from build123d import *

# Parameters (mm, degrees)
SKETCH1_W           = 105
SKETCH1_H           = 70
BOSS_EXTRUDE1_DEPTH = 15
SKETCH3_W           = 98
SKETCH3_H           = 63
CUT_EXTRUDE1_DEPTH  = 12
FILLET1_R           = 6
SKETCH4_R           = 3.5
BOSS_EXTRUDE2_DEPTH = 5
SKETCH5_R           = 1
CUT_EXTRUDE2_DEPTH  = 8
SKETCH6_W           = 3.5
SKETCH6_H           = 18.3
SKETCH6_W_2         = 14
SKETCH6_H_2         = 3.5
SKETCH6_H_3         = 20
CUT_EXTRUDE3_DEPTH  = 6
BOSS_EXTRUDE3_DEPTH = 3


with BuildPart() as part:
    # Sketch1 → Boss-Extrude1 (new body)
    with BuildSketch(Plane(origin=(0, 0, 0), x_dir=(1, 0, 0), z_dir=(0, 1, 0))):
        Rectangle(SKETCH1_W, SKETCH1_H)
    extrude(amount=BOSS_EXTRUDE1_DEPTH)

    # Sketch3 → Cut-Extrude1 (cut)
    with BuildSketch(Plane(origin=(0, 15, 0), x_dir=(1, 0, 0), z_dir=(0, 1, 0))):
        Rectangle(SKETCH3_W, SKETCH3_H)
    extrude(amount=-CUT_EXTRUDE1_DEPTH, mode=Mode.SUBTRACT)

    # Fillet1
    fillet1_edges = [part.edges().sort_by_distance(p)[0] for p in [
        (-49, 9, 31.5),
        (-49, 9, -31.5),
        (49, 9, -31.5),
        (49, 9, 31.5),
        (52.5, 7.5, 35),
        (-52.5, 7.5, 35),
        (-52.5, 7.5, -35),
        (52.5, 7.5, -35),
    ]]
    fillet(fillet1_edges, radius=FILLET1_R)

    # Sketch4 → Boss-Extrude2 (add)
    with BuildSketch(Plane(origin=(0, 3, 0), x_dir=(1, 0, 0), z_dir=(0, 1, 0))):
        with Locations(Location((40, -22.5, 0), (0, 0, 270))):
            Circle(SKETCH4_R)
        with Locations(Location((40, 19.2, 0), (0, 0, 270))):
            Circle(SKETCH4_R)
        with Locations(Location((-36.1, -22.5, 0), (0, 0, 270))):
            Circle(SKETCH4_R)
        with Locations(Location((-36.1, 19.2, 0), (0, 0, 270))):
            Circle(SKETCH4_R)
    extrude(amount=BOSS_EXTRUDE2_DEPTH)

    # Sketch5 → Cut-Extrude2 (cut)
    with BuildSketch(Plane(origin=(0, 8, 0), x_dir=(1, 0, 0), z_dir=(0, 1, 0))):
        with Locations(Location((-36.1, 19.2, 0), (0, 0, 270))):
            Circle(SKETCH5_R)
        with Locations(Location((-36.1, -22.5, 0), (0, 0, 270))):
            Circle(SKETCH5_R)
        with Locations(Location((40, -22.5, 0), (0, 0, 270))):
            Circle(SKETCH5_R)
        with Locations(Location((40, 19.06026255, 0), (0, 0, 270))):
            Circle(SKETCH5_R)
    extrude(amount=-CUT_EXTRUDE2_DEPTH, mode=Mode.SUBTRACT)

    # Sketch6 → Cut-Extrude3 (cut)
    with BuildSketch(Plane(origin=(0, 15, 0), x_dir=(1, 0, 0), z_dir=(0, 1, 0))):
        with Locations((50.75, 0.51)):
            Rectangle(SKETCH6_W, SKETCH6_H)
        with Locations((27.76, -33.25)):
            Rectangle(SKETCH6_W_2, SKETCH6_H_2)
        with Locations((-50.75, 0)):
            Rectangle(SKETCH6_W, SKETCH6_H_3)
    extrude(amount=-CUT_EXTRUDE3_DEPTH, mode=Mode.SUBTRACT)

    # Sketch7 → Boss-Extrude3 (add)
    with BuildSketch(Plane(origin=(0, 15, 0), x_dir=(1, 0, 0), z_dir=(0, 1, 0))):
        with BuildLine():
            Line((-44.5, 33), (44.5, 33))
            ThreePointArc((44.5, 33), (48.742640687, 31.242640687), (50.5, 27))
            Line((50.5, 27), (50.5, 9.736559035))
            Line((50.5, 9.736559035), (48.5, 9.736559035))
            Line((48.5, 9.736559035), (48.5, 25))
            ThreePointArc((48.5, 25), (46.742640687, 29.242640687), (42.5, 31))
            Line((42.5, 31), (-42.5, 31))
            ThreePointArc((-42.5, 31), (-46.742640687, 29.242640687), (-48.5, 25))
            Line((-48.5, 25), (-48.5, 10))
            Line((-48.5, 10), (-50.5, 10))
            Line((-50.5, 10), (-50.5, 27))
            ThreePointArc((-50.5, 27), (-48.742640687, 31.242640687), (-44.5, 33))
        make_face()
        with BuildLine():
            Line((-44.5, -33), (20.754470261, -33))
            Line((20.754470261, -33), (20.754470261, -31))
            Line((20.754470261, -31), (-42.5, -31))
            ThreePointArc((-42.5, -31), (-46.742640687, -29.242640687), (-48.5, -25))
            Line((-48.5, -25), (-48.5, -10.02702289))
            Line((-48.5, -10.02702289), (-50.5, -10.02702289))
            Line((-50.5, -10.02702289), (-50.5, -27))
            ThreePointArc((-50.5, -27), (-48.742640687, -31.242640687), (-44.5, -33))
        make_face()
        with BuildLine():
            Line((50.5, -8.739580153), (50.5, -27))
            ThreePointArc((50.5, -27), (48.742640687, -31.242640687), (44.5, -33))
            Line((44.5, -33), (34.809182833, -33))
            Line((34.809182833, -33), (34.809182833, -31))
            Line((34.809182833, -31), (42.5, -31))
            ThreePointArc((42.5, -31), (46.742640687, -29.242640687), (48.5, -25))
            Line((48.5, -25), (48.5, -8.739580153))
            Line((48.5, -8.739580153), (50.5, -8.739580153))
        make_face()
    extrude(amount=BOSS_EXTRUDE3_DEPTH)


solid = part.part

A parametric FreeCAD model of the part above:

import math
import FreeCAD as App
import Part
import Sketcher
Q = App.Units.Quantity


def edges_at(feature, points):
    """Names of the edges that pass closest to the given points."""
    edges = feature.Shape.Edges
    near = lambda p: min(range(len(edges)), key=lambda i: edges[i].distToShape(Part.Vertex(*p))[0])
    return sorted({f"Edge{near(p) + 1}" for p in points})


def add_polygon(sketch, points):
    """Adds a closed chain of lines whose ends are joined by coincident constraints."""
    first, n = sketch.GeometryCount, len(points)
    for a, b in zip(points, points[1:] + points[:1]):
        sketch.addGeometry(Part.LineSegment(App.Vector(*a, 0), App.Vector(*b, 0)), False)
    for i in range(n):
        sketch.addConstraint(Sketcher.Constraint("Coincident", first + i, 2, first + (i + 1) % n, 1))

doc = App.newDocument("Part")
body = doc.addObject("PartDesign::Body", "Body")

sketch1 = doc.addObject("Sketcher::SketchObject", "Sketch")
body.addObject(sketch1)
sketch1.AttachmentSupport = (doc.XZ_Plane, [""])
sketch1.MapMode = "FlatFace"
add_polygon(sketch1, [(-52, -35), (-52, 35), (52, 35), (52, -35)])
sketch1.addConstraint(Sketcher.Constraint("Vertical", 0))
sketch1.addConstraint(Sketcher.Constraint("Horizontal", 1))
sketch1.addConstraint(Sketcher.Constraint("Vertical", 2))
sketch1.addConstraint(Sketcher.Constraint("Horizontal", 3))
sketch1.addConstraint(Sketcher.Constraint("Symmetric", 0, 2, 2, 2, -1, 1))
sketch1.addConstraint(Sketcher.Constraint("DistanceX", 1, 1, 1, 2, Q("105 mm")))
sketch1.addConstraint(Sketcher.Constraint("DistanceY", 0, 1, 0, 2, Q("70 mm")))
pad1 = doc.addObject("PartDesign::Pad", "Pad")
body.addObject(pad1)
pad1.Profile = sketch1
pad1.Length = 15
pad1.Reversed = True

sketch2 = doc.addObject("Sketcher::SketchObject", "Sketch001")
body.addObject(sketch2)
sketch2.AttachmentSupport = (doc.XZ_Plane, [""])
sketch2.MapMode = "FlatFace"
sketch2.AttachmentOffset = App.Placement(App.Vector(0, 0, -15), App.Rotation())
add_polygon(sketch2, [(-49, -32), (-49, 32), (49, 32), (49, -32)])
sketch2.addConstraint(Sketcher.Constraint("Vertical", 0))
sketch2.addConstraint(Sketcher.Constraint("Horizontal", 1))
sketch2.addConstraint(Sketcher.Constraint("Vertical", 2))
sketch2.addConstraint(Sketcher.Constraint("Horizontal", 3))
sketch2.addConstraint(Sketcher.Constraint("Symmetric", 0, 2, 2, 2, -1, 1))
sketch2.addConstraint(Sketcher.Constraint("DistanceX", 1, 1, 1, 2, Q("98 mm")))
sketch2.addConstraint(Sketcher.Constraint("DistanceY", 0, 1, 0, 2, Q("63 mm")))
pocket1 = doc.addObject("PartDesign::Pocket", "Pocket")
body.addObject(pocket1)
pocket1.Profile = sketch2
pocket1.Length = 12
pocket1.Reversed = True
doc.recompute()

fillet = doc.addObject("PartDesign::Fillet", "Fillet")
body.addObject(fillet)
fillet.Base = (pocket1, edges_at(pocket1, [
    (-49, 9, 31.5),
    (-49, 9, -31.5),
    (49, 9, -31.5),
    (49, 9, 31.5),
    (52.5, 7.5, 35),
    (-52.5, 7.5, 35),
    (-52.5, 7.5, -35),
    (52.5, 7.5, -35),
]))
fillet.Radius = 6

sketch3 = doc.addObject("Sketcher::SketchObject", "Sketch002")
body.addObject(sketch3)
sketch3.AttachmentSupport = (doc.XZ_Plane, [""])
sketch3.MapMode = "FlatFace"
sketch3.AttachmentOffset = App.Placement(App.Vector(0, 0, -3), App.Rotation())
sketch3.addGeometry(Part.Circle(App.Vector(40, 22.5, 0), App.Vector(0, 0, 1), 3.5), False)
sketch3.addGeometry(Part.Circle(App.Vector(40, -19.2, 0), App.Vector(0, 0, 1), 3.5), False)
sketch3.addGeometry(Part.Circle(App.Vector(-36.1, 22.5, 0), App.Vector(0, 0, 1), 3.5), False)
sketch3.addGeometry(Part.Circle(App.Vector(-36.1, -19.2, 0), App.Vector(0, 0, 1), 3.5), False)
sketch3.addConstraint(Sketcher.Constraint("Equal", 0, 1))
sketch3.addConstraint(Sketcher.Constraint("Equal", 1, 2))
sketch3.addConstraint(Sketcher.Constraint("Equal", 2, 3))
sketch3.addConstraint(Sketcher.Constraint("Horizontal", 0, 3, 2, 3))
sketch3.addConstraint(Sketcher.Constraint("Horizontal", 1, 3, 3, 3))
sketch3.addConstraint(Sketcher.Constraint("Vertical", 0, 3, 1, 3))
sketch3.addConstraint(Sketcher.Constraint("Vertical", 2, 3, 3, 3))
sketch3.addConstraint(Sketcher.Constraint("Diameter", 0, Q("7 mm")))
sketch3.addConstraint(Sketcher.Constraint("DistanceX", -1, 1, 0, 3, Q("40 mm")))
sketch3.addConstraint(Sketcher.Constraint("DistanceY", -1, 1, 0, 3, Q("22.5 mm")))
sketch3.addConstraint(Sketcher.Constraint("DistanceY", 1, 3, -1, 1, Q("19.2 mm")))
sketch3.addConstraint(Sketcher.Constraint("DistanceX", 2, 3, -1, 1, Q("36.1 mm")))
pad2 = doc.addObject("PartDesign::Pad", "Pad001")
body.addObject(pad2)
pad2.Profile = sketch3
pad2.Length = 5
pad2.Reversed = True

sketch4 = doc.addObject("Sketcher::SketchObject", "Sketch003")
body.addObject(sketch4)
sketch4.AttachmentSupport = (doc.XZ_Plane, [""])
sketch4.MapMode = "FlatFace"
sketch4.AttachmentOffset = App.Placement(App.Vector(0, 0, -8), App.Rotation())
sketch4.addGeometry(Part.Circle(App.Vector(-36.1, -19.2, 0), App.Vector(0, 0, 1), 1), False)
sketch4.addGeometry(Part.Circle(App.Vector(-36.1, 22.5, 0), App.Vector(0, 0, 1), 1), False)
sketch4.addGeometry(Part.Circle(App.Vector(40, 22.5, 0), App.Vector(0, 0, 1), 1), False)
sketch4.addGeometry(Part.Circle(App.Vector(40, -19.1, 0), App.Vector(0, 0, 1), 1), False)
sketch4.addConstraint(Sketcher.Constraint("Equal", 0, 1))
sketch4.addConstraint(Sketcher.Constraint("Equal", 1, 2))
sketch4.addConstraint(Sketcher.Constraint("Equal", 2, 3))
sketch4.addConstraint(Sketcher.Constraint("Horizontal", 1, 3, 2, 3))
sketch4.addConstraint(Sketcher.Constraint("Vertical", 0, 3, 1, 3))
sketch4.addConstraint(Sketcher.Constraint("Vertical", 2, 3, 3, 3))
sketch4.addConstraint(Sketcher.Constraint("Diameter", 0, Q("2 mm")))
sketch4.addConstraint(Sketcher.Constraint("DistanceX", -1, 1, 2, 3, Q("40 mm")))
sketch4.addConstraint(Sketcher.Constraint("DistanceX", 0, 3, -1, 1, Q("36.1 mm")))
sketch4.addConstraint(Sketcher.Constraint("DistanceY", 0, 3, -1, 1, Q("19.2 mm")))
sketch4.addConstraint(Sketcher.Constraint("DistanceY", -1, 1, 1, 3, Q("22.5 mm")))
sketch4.addConstraint(Sketcher.Constraint("DistanceY", 3, 3, -1, 1, Q("19.060263 mm")))
pocket2 = doc.addObject("PartDesign::Pocket", "Pocket001")
body.addObject(pocket2)
pocket2.Profile = sketch4
pocket2.Length = 8
pocket2.Reversed = True

sketch5 = doc.addObject("Sketcher::SketchObject", "Sketch004")
body.addObject(sketch5)
sketch5.AttachmentSupport = (doc.XZ_Plane, [""])
sketch5.MapMode = "FlatFace"
sketch5.AttachmentOffset = App.Placement(App.Vector(0, 0, -15), App.Rotation())
add_polygon(sketch5, [(49, -9.7), (49, 8.6), (52.5, 8.6), (52.5, -9.7)])
add_polygon(sketch5, [(20.8, 31.5), (20.8, 35), (34.8, 35), (34.8, 31.5)])
add_polygon(sketch5, [(-52.5, -10), (-52.5, 10), (-49, 10), (-49, -10)])
sketch5.addConstraint(Sketcher.Constraint("Vertical", 0))
sketch5.addConstraint(Sketcher.Constraint("Horizontal", 1))
sketch5.addConstraint(Sketcher.Constraint("Vertical", 2))
sketch5.addConstraint(Sketcher.Constraint("Horizontal", 3))
sketch5.addConstraint(Sketcher.Constraint("Vertical", 4))
sketch5.addConstraint(Sketcher.Constraint("Horizontal", 5))
sketch5.addConstraint(Sketcher.Constraint("Vertical", 6))
sketch5.addConstraint(Sketcher.Constraint("Horizontal", 7))
sketch5.addConstraint(Sketcher.Constraint("Vertical", 8))
sketch5.addConstraint(Sketcher.Constraint("Horizontal", 9))
sketch5.addConstraint(Sketcher.Constraint("Vertical", 10))
sketch5.addConstraint(Sketcher.Constraint("Horizontal", 11))
sketch5.addConstraint(Sketcher.Constraint("Equal", 3, 9))
sketch5.addConstraint(Sketcher.Constraint("Equal", 11, 4))
sketch5.addConstraint(Sketcher.Constraint("DistanceX", 5, 1, 5, 2, Q("14 mm")))
sketch5.addConstraint(Sketcher.Constraint("DistanceY", 8, 1, 8, 2, Q("20 mm")))
sketch5.addConstraint(Sketcher.Constraint("DistanceX", 1, 1, 1, 2, Q("3.5 mm")))
sketch5.addConstraint(Sketcher.Constraint("DistanceY", 0, 1, 0, 2, Q("18.3 mm")))
sketch5.addConstraint(Sketcher.Constraint("DistanceX", -1, 1, 0, 2, Q("49 mm")))
sketch5.addConstraint(Sketcher.Constraint("DistanceY", -1, 1, 4, 2, Q("35 mm")))
sketch5.addConstraint(Sketcher.Constraint("DistanceY", -1, 1, 8, 2, Q("10 mm")))
sketch5.addConstraint(Sketcher.Constraint("DistanceX", 9, 2, -1, 1, Q("49 mm")))
sketch5.addConstraint(Sketcher.Constraint("DistanceY", -1, 1, 0, 2, Q("8.64 mm")))
sketch5.addConstraint(Sketcher.Constraint("DistanceX", -1, 1, 4, 2, Q("20.76 mm")))
pocket3 = doc.addObject("PartDesign::Pocket", "Pocket002")
body.addObject(pocket3)
pocket3.Profile = sketch5
pocket3.Length = 6
pocket3.Reversed = True

sketch6 = doc.addObject("Sketcher::SketchObject", "Sketch005")
body.addObject(sketch6)
sketch6.AttachmentSupport = (doc.XZ_Plane, [""])
sketch6.MapMode = "FlatFace"
sketch6.AttachmentOffset = App.Placement(App.Vector(0, 0, -15), App.Rotation())
sketch6.addGeometry(Part.LineSegment(App.Vector(44.5, -33, 0), App.Vector(-44.5, -33, 0)), False)
sketch6.addGeometry(Part.ArcOfCircle(Part.Circle(App.Vector(-44.5, -27, 0), App.Vector(0, 0, 1), 6), math.radians(180), math.radians(270)), False)
sketch6.addGeometry(Part.LineSegment(App.Vector(-50.5, -27, 0), App.Vector(-50.5, -10, 0)), False)
sketch6.addGeometry(Part.LineSegment(App.Vector(-50.5, -10, 0), App.Vector(-48.5, -10, 0)), False)
sketch6.addGeometry(Part.LineSegment(App.Vector(-48.5, -10, 0), App.Vector(-48.5, -25, 0)), False)
sketch6.addGeometry(Part.ArcOfCircle(Part.Circle(App.Vector(-42.5, -25, 0), App.Vector(0, 0, 1), 6), math.radians(180), math.radians(270)), False)
sketch6.addGeometry(Part.LineSegment(App.Vector(-42.5, -31, 0), App.Vector(42.5, -31, 0)), False)
sketch6.addGeometry(Part.ArcOfCircle(Part.Circle(App.Vector(42.5, -25, 0), App.Vector(0, 0, 1), 6), math.radians(-90), math.radians(0)), False)
sketch6.addGeometry(Part.LineSegment(App.Vector(48.5, -25, 0), App.Vector(48.5, -9.7, 0)), False)
sketch6.addGeometry(Part.LineSegment(App.Vector(48.5, -9.7, 0), App.Vector(50.5, -9.7, 0)), False)
sketch6.addGeometry(Part.LineSegment(App.Vector(50.5, -9.7, 0), App.Vector(50.5, -27, 0)), False)
sketch6.addGeometry(Part.ArcOfCircle(Part.Circle(App.Vector(44.5, -27, 0), App.Vector(0, 0, 1), 6), math.radians(-90), math.radians(0)), False)
sketch6.addGeometry(Part.LineSegment(App.Vector(-44.5, 33, 0), App.Vector(20.8, 33, 0)), False)
sketch6.addGeometry(Part.LineSegment(App.Vector(20.8, 33, 0), App.Vector(20.8, 31, 0)), False)
sketch6.addGeometry(Part.LineSegment(App.Vector(20.8, 31, 0), App.Vector(-42.5, 31, 0)), False)
sketch6.addGeometry(Part.ArcOfCircle(Part.Circle(App.Vector(-42.5, 25, 0), App.Vector(0, 0, 1), 6), math.radians(90), math.radians(180)), False)
sketch6.addGeometry(Part.LineSegment(App.Vector(-48.5, 25, 0), App.Vector(-48.5, 10, 0)), False)
sketch6.addGeometry(Part.LineSegment(App.Vector(-48.5, 10, 0), App.Vector(-50.5, 10, 0)), False)
sketch6.addGeometry(Part.LineSegment(App.Vector(-50.5, 10, 0), App.Vector(-50.5, 27, 0)), False)
sketch6.addGeometry(Part.ArcOfCircle(Part.Circle(App.Vector(-44.5, 27, 0), App.Vector(0, 0, 1), 6), math.radians(90), math.radians(180)), False)
sketch6.addGeometry(Part.LineSegment(App.Vector(50.5, 27, 0), App.Vector(50.5, 8.7, 0)), False)
sketch6.addGeometry(Part.LineSegment(App.Vector(50.5, 8.7, 0), App.Vector(48.5, 8.7, 0)), False)
sketch6.addGeometry(Part.LineSegment(App.Vector(48.5, 8.7, 0), App.Vector(48.5, 25, 0)), False)
sketch6.addGeometry(Part.ArcOfCircle(Part.Circle(App.Vector(42.5, 25, 0), App.Vector(0, 0, 1), 6), math.radians(0), math.radians(90)), False)
sketch6.addGeometry(Part.LineSegment(App.Vector(42.5, 31, 0), App.Vector(34.8, 31, 0)), False)
sketch6.addGeometry(Part.LineSegment(App.Vector(34.8, 31, 0), App.Vector(34.8, 33, 0)), False)
sketch6.addGeometry(Part.LineSegment(App.Vector(34.8, 33, 0), App.Vector(44.5, 33, 0)), False)
sketch6.addGeometry(Part.ArcOfCircle(Part.Circle(App.Vector(44.5, 27, 0), App.Vector(0, 0, 1), 6), math.radians(0), math.radians(90)), False)
sketch6.addConstraint(Sketcher.Constraint("Tangent", 0, 2, 1, 2))
sketch6.addConstraint(Sketcher.Constraint("Tangent", 1, 1, 2, 1))
sketch6.addConstraint(Sketcher.Constraint("Coincident", 2, 2, 3, 1))
sketch6.addConstraint(Sketcher.Constraint("Coincident", 3, 2, 4, 1))
sketch6.addConstraint(Sketcher.Constraint("Tangent", 4, 2, 5, 1))
sketch6.addConstraint(Sketcher.Constraint("Tangent", 5, 2, 6, 1))
sketch6.addConstraint(Sketcher.Constraint("Tangent", 6, 2, 7, 1))
sketch6.addConstraint(Sketcher.Constraint("Tangent", 7, 2, 8, 1))
sketch6.addConstraint(Sketcher.Constraint("Coincident", 8, 2, 9, 1))
sketch6.addConstraint(Sketcher.Constraint("Coincident", 9, 2, 10, 1))
sketch6.addConstraint(Sketcher.Constraint("Tangent", 10, 2, 11, 2))
sketch6.addConstraint(Sketcher.Constraint("Tangent", 11, 1, 0, 1))
sketch6.addConstraint(Sketcher.Constraint("Coincident", 12, 2, 13, 1))
sketch6.addConstraint(Sketcher.Constraint("Coincident", 13, 2, 14, 1))
sketch6.addConstraint(Sketcher.Constraint("Tangent", 14, 2, 15, 1))
sketch6.addConstraint(Sketcher.Constraint("Tangent", 15, 2, 16, 1))
sketch6.addConstraint(Sketcher.Constraint("Coincident", 16, 2, 17, 1))
sketch6.addConstraint(Sketcher.Constraint("Coincident", 17, 2, 18, 1))
sketch6.addConstraint(Sketcher.Constraint("Tangent", 18, 2, 19, 2))
sketch6.addConstraint(Sketcher.Constraint("Tangent", 19, 1, 12, 1))
sketch6.addConstraint(Sketcher.Constraint("Coincident", 20, 2, 21, 1))
sketch6.addConstraint(Sketcher.Constraint("Coincident", 21, 2, 22, 1))
sketch6.addConstraint(Sketcher.Constraint("Tangent", 22, 2, 23, 1))
sketch6.addConstraint(Sketcher.Constraint("Tangent", 23, 2, 24, 1))
sketch6.addConstraint(Sketcher.Constraint("Coincident", 24, 2, 25, 1))
sketch6.addConstraint(Sketcher.Constraint("Coincident", 25, 2, 26, 1))
sketch6.addConstraint(Sketcher.Constraint("Tangent", 26, 2, 27, 2))
sketch6.addConstraint(Sketcher.Constraint("Tangent", 27, 1, 20, 1))
sketch6.addConstraint(Sketcher.Constraint("Horizontal", 0))
sketch6.addConstraint(Sketcher.Constraint("Vertical", 2))
sketch6.addConstraint(Sketcher.Constraint("Horizontal", 3))
sketch6.addConstraint(Sketcher.Constraint("Vertical", 4))
sketch6.addConstraint(Sketcher.Constraint("Horizontal", 6))
sketch6.addConstraint(Sketcher.Constraint("Vertical", 8))
sketch6.addConstraint(Sketcher.Constraint("Horizontal", 9))
sketch6.addConstraint(Sketcher.Constraint("Vertical", 10))
sketch6.addConstraint(Sketcher.Constraint("Horizontal", 12))
sketch6.addConstraint(Sketcher.Constraint("Vertical", 13))
sketch6.addConstraint(Sketcher.Constraint("Horizontal", 14))
sketch6.addConstraint(Sketcher.Constraint("Vertical", 16))
sketch6.addConstraint(Sketcher.Constraint("Horizontal", 17))
sketch6.addConstraint(Sketcher.Constraint("Vertical", 18))
sketch6.addConstraint(Sketcher.Constraint("Vertical", 20))
sketch6.addConstraint(Sketcher.Constraint("Horizontal", 21))
sketch6.addConstraint(Sketcher.Constraint("Vertical", 22))
sketch6.addConstraint(Sketcher.Constraint("Horizontal", 24))
sketch6.addConstraint(Sketcher.Constraint("Vertical", 25))
sketch6.addConstraint(Sketcher.Constraint("Horizontal", 26))
sketch6.addConstraint(Sketcher.Constraint("Equal", 1, 5))
sketch6.addConstraint(Sketcher.Constraint("Equal", 5, 7))
sketch6.addConstraint(Sketcher.Constraint("Equal", 7, 11))
sketch6.addConstraint(Sketcher.Constraint("Equal", 11, 15))
sketch6.addConstraint(Sketcher.Constraint("Equal", 15, 19))
sketch6.addConstraint(Sketcher.Constraint("Equal", 19, 23))
sketch6.addConstraint(Sketcher.Constraint("Equal", 23, 27))
sketch6.addConstraint(Sketcher.Constraint("Symmetric", 7, 3, 15, 3, -1, 1))
sketch6.addConstraint(Sketcher.Constraint("Symmetric", 11, 3, 19, 3, -1, 1))
sketch6.addConstraint(Sketcher.Constraint("Symmetric", 5, 3, 23, 3, -1, 1))
sketch6.addConstraint(Sketcher.Constraint("Symmetric", 1, 3, 27, 3, -1, 1))
sketch6.addConstraint(Sketcher.Constraint("Vertical", 5, 3, 15, 3))
sketch6.addConstraint(Sketcher.Constraint("Vertical", 1, 3, 19, 3))
sketch6.addConstraint(Sketcher.Constraint("Equal", 21, 13))
sketch6.addConstraint(Sketcher.Constraint("Radius", 1, Q("6 mm")))
sketch6.addConstraint(Sketcher.Constraint("DistanceX", 0, 2, 0, 1, Q("89 mm")))
sketch6.addConstraint(Sketcher.Constraint("DistanceX", 3, 1, 3, 2, Q("2 mm")))
sketch6.addConstraint(Sketcher.Constraint("DistanceY", 2, 1, 2, 2, Q("17 mm")))
sketch6.addConstraint(Sketcher.Constraint("DistanceY", 1, 3, -1, 1, Q("27 mm")))
sketch6.addConstraint(Sketcher.Constraint("DistanceX", 12, 1, 12, 2, Q("65.25447 mm")))
sketch6.addConstraint(Sketcher.Constraint("DistanceY", 8, 1, 8, 2, Q("15.263441 mm")))
sketch6.addConstraint(Sketcher.Constraint("DistanceY", 20, 2, 20, 1, Q("18.26042 mm")))
sketch6.addConstraint(Sketcher.Constraint("DistanceX", 24, 2, 24, 1, Q("7.690817 mm")))
sketch6.addConstraint(Sketcher.Constraint("DistanceY", 16, 2, 16, 1, Q("14.972977 mm")))
pad3 = doc.addObject("PartDesign::Pad", "Pad002")
body.addObject(pad3)
pad3.Profile = sketch6
pad3.Length = 3
pad3.Reversed = True

doc.recompute()
